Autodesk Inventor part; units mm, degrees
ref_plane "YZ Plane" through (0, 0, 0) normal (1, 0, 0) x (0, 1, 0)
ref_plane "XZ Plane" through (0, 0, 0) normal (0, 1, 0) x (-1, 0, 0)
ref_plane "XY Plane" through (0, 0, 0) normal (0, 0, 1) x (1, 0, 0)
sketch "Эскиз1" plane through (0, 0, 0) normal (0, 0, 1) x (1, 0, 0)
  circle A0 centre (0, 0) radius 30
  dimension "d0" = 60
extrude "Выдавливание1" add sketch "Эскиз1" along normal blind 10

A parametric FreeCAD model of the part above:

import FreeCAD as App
import Part
import Sketcher

doc = App.newDocument("Part")
body = doc.addObject("PartDesign::Body", "Body")

sketch1 = doc.addObject("Sketcher::SketchObject", "Sketch")
body.addObject(sketch1)
sketch1.AttachmentSupport = (doc.XY_Plane, [""])
sketch1.MapMode = "FlatFace"
sketch1.addGeometry(Part.Circle(App.Vector(0, 0, 0), App.Vector(0, 0, 1), 30), False)
sketch1.addConstraint([
    Sketcher.Constraint("Coincident", 0, 3, -1, 1),
    Sketcher.Constraint("Diameter", 0, 60.0),
])
pad1 = doc.addObject("PartDesign::Pad", "Pad")
body.addObject(pad1)
pad1.Profile = sketch1
pad1.Length = 10

doc.recompute()
